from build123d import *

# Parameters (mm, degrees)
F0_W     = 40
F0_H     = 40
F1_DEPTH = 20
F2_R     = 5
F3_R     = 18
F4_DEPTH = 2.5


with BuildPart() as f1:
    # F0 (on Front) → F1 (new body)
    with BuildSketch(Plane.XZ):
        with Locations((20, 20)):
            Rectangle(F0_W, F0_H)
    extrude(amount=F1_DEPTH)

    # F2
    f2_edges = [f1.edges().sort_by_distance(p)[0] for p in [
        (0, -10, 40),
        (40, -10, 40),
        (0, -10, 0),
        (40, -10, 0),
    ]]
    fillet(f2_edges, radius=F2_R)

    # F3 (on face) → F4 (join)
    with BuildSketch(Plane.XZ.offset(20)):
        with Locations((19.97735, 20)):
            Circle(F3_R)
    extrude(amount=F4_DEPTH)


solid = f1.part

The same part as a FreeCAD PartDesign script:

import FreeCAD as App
import Part
import Sketcher
Q = App.Units.Quantity


def edges_at(feature, points):
    """Names of the edges that pass closest to the given points."""
    edges = feature.Shape.Edges
    near = lambda p: min(range(len(edges)), key=lambda i: edges[i].distToShape(Part.Vertex(*p))[0])
    return sorted({f"Edge{near(p) + 1}" for p in points})

doc = App.newDocument("Part")
body = doc.addObject("PartDesign::Body", "Body")

# Sketch on XZ plane
sketch1 = body.newObject("Sketcher::SketchObject", "Sketch")
sketch1.AttachmentSupport = (doc.getObject("XZ_Plane"), [""])
sketch1.MapMode = "FlatFace"
sketch1.addGeometry([
    Part.LineSegment(App.Vector(0, 40, 0), App.Vector(0, 0, 0)),
    Part.LineSegment(App.Vector(0, 0, 0), App.Vector(40, 0, 0)),
    Part.LineSegment(App.Vector(40, 0, 0), App.Vector(40, 40, 0)),
    Part.LineSegment(App.Vector(40, 40, 0), App.Vector(0, 40, 0)),
], False)
sketch1.addConstraint([
    Sketcher.Constraint("Coincident", 0, 2, 1, 1),
    Sketcher.Constraint("Coincident", 1, 2, 2, 1),
    Sketcher.Constraint("Coincident", 2, 2, 3, 1),
    Sketcher.Constraint("Coincident", 3, 2, 0, 1),
    Sketcher.Constraint("Vertical", 0),
    Sketcher.Constraint("Horizontal", 1),
    Sketcher.Constraint("Vertical", 2),
    Sketcher.Constraint("Horizontal", 3),
    Sketcher.Constraint("Coincident", 0, 2, -1, 1),
    Sketcher.Constraint("Equal", 3, 0),
    Sketcher.Constraint("DistanceX", 1, 1, 1, 2, Q("40 mm")),
])
pad1 = body.newObject("PartDesign::Pad", "Pad")
pad1.Profile = sketch1
pad1.Length = 20
doc.recompute()

fillet = body.newObject("PartDesign::Fillet", "Fillet")
fillet.Base = (pad1, edges_at(pad1, [
    (0, -10, 40),
    (40, -10, 40),
    (0, -10, 0),
    (40, -10, 0),
]))
fillet.Radius = 5

# Sketch on XZ plane
sketch2 = body.newObject("Sketcher::SketchObject", "Sketch001")
sketch2.AttachmentSupport = (doc.getObject("XZ_Plane"), [""])
sketch2.MapMode = "FlatFace"
sketch2.AttachmentOffset = App.Placement(App.Vector(0, 0, 20), App.Rotation())
sketch2.addGeometry(Part.Circle(App.Vector(19.97735, 20, 0), App.Vector(0, 0, 1), 18), False)
sketch2.addConstraint([
    Sketcher.Constraint("Diameter", 0, Q("36 mm")),
    Sketcher.Constraint("DistanceY", -1, 1, 0, 3, Q("20 mm")),
    Sketcher.Constraint("DistanceX", -1, 1, 0, 3, Q("19.97735 mm")),
])
pad2 = body.newObject("PartDesign::Pad", "Pad001")
pad2.Profile = sketch2
pad2.Length = 2.5

doc.recompute()
